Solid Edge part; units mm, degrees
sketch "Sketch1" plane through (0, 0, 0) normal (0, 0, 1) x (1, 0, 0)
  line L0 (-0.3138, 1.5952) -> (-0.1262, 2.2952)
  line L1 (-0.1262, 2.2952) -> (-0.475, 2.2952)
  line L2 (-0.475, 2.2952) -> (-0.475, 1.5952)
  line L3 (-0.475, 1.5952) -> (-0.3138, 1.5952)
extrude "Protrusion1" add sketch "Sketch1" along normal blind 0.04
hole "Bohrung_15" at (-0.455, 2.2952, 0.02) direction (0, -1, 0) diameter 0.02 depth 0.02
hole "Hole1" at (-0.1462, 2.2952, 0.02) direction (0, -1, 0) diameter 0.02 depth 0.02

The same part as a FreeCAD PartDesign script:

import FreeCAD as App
import Part
import Sketcher

V = App.Vector
Q = App.Units.Quantity


def add_polygon(sketch, points):
    """Adds a closed chain of lines whose ends are joined by coincident constraints."""
    first, n = sketch.GeometryCount, len(points)
    for a, b in zip(points, points[1:] + points[:1]):
        sketch.addGeometry(Part.LineSegment(App.Vector(*a, 0), App.Vector(*b, 0)), False)
    for i in range(n):
        sketch.addConstraint(Sketcher.Constraint("Coincident", first + i, 2, first + (i + 1) % n, 1))

doc = App.newDocument("Part")
body = doc.addObject("PartDesign::Body", "Body")

sketch1 = body.newObject("Sketcher::SketchObject", "Sketch")
sketch1.AttachmentSupport = (doc.getObject("XY_Plane"), [""])
sketch1.MapMode = "FlatFace"
add_polygon(sketch1, [(-0.475, 1.5952), (-0.3138, 1.5952), (-0.1262, 2.2952), (-0.475, 2.2952)])
sketch1.addConstraint([
    Sketcher.Constraint("Horizontal", 0),
    Sketcher.Constraint("Horizontal", 2),
    Sketcher.Constraint("Vertical", 3),
    Sketcher.Constraint("DistanceY", 3, 2, 3, 1, Q("0.7 mm")),
    Sketcher.Constraint("DistanceX", 0, 1, 0, 2, Q("0.1612 mm")),
    Sketcher.Constraint("DistanceX", 2, 2, 2, 1, Q("0.3488 mm")),
    Sketcher.Constraint("DistanceX", 2, 2, -1, 1, Q("0.475 mm")),
    Sketcher.Constraint("DistanceY", -1, 1, 0, 2, Q("1.5952 mm")),
])
pad1 = body.newObject("PartDesign::Pad", "Pad")
pad1.Profile = sketch1
pad1.Length = 0.04

sketch2 = body.newObject("Sketcher::SketchObject", "Sketch001")
sketch2.AttachmentSupport = (doc.getObject("XZ_Plane"), [""])
sketch2.MapMode = "FlatFace"
sketch2.AttachmentOffset = App.Placement(V(0, 0, -2.2952), App.Rotation())
sketch2.addGeometry(Part.Circle(V(-0.455, 0.02, 0), V(0, 0, 1), 0.01), False)
sketch2.addConstraint([
    Sketcher.Constraint("Diameter", 0, Q("0.02 mm")),
    Sketcher.Constraint("DistanceY", -1, 1, 0, 3, Q("0.02 mm")),
    Sketcher.Constraint("DistanceX", 0, 3, -1, 1, Q("0.455 mm")),
])
doc.recompute()
hole = body.newObject("PartDesign::Hole", "Hole")
hole.Profile = sketch2
hole.ThreadType = "None"
hole.Diameter = 0.02
hole.DepthType = "Dimension"
hole.Depth = 0.02
hole.DrillPoint = "Flat"
hole.Reversed = True

sketch3 = body.newObject("Sketcher::SketchObject", "Sketch002")
sketch3.AttachmentSupport = (doc.getObject("XZ_Plane"), [""])
sketch3.MapMode = "FlatFace"
sketch3.AttachmentOffset = App.Placement(V(0, 0, -2.2952), App.Rotation())
sketch3.addGeometry(Part.Circle(V(-0.1462, 0.02, 0), V(0, 0, 1), 0.01), False)
sketch3.addConstraint([
    Sketcher.Constraint("Diameter", 0, Q("0.02 mm")),
    Sketcher.Constraint("DistanceY", -1, 1, 0, 3, Q("0.02 mm")),
    Sketcher.Constraint("DistanceX", 0, 3, -1, 1, Q("0.1462 mm")),
])
doc.recompute()
hole2 = body.newObject("PartDesign::Hole", "Hole001")
hole2.Profile = sketch3
hole2.ThreadType = "None"
hole2.Diameter = 0.02
hole2.DepthType = "Dimension"
hole2.Depth = 0.02
hole2.DrillPoint = "Flat"
hole2.Reversed = True

doc.recompute()
